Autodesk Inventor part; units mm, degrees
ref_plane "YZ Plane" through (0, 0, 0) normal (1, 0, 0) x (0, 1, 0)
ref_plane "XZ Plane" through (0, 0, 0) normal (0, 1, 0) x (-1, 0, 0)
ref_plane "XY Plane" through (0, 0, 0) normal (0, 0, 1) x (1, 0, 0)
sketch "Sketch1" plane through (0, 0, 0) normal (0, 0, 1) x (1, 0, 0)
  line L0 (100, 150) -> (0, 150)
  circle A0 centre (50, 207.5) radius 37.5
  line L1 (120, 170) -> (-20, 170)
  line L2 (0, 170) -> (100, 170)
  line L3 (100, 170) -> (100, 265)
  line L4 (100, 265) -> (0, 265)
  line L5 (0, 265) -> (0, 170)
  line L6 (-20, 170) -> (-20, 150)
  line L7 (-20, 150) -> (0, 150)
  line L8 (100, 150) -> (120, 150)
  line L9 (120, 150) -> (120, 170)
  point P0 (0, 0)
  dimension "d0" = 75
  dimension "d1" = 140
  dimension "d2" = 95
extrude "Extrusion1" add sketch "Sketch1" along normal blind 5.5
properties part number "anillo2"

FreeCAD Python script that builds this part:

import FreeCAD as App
import Part
import Sketcher

V = App.Vector

doc = App.newDocument("Part")
params = doc.addObject("Spreadsheet::Sheet", "Params")
for row, (alias, value) in enumerate([
    ("sketch1_diameter", "75 mm"),
    ("sketch1_width", "140 mm"),
    ("sketch1_height", "95 mm"),
    ("sketch1_width2", "20 mm"),
    ("pad1_length", "5.5 mm"),
], start=1):
    params.set(f"A{row}", alias)
    params.set(f"B{row}", "=" + value)
    params.setAlias(f"B{row}", alias)

body = doc.addObject("PartDesign::Body", "Body")

# Sketch on XY plane
sketch1 = body.newObject("Sketcher::SketchObject", "Sketch")
sketch1.AttachmentSupport = (doc.getObject("XY_Plane"), [""])
sketch1.MapMode = "FlatFace"
sketch1.addGeometry(Part.LineSegment(V(120, 150, 0), V(120, 170, 0)), False)
sketch1.addGeometry(Part.LineSegment(V(120, 170, 0), V(100, 170, 0)), False)
sketch1.addGeometry(Part.LineSegment(V(100, 170, 0), V(100, 265, 0)), False)
sketch1.addGeometry(Part.LineSegment(V(100, 265, 0), V(0, 265, 0)), False)
sketch1.addGeometry(Part.LineSegment(V(0, 265, 0), V(0, 170, 0)), False)
sketch1.addGeometry(Part.LineSegment(V(0, 170, 0), V(-20, 170, 0)), False)
sketch1.addGeometry(Part.LineSegment(V(-20, 170, 0), V(-20, 150, 0)), False)
sketch1.addGeometry(Part.LineSegment(V(-20, 150, 0), V(120, 150, 0)), False)
sketch1.addGeometry(Part.Circle(V(50, 208, 0), V(0, 0, 1), 38), False)
sketch1.addConstraint(Sketcher.Constraint("Coincident", 0, 2, 1, 1))
sketch1.addConstraint(Sketcher.Constraint("Coincident", 1, 2, 2, 1))
sketch1.addConstraint(Sketcher.Constraint("Coincident", 2, 2, 3, 1))
sketch1.addConstraint(Sketcher.Constraint("Coincident", 3, 2, 4, 1))
sketch1.addConstraint(Sketcher.Constraint("Coincident", 4, 2, 5, 1))
sketch1.addConstraint(Sketcher.Constraint("Coincident", 5, 2, 6, 1))
sketch1.addConstraint(Sketcher.Constraint("Coincident", 6, 2, 7, 1))
sketch1.addConstraint(Sketcher.Constraint("Coincident", 7, 2, 0, 1))
sketch1.addConstraint(Sketcher.Constraint("Vertical", 0))
sketch1.addConstraint(Sketcher.Constraint("Horizontal", 1))
sketch1.addConstraint(Sketcher.Constraint("Vertical", 2))
sketch1.addConstraint(Sketcher.Constraint("Horizontal", 3))
sketch1.addConstraint(Sketcher.Constraint("Vertical", 4))
sketch1.addConstraint(Sketcher.Constraint("Horizontal", 5))
sketch1.addConstraint(Sketcher.Constraint("Vertical", 6))
sketch1.addConstraint(Sketcher.Constraint("Horizontal", 7))
sketch1.addConstraint(Sketcher.Constraint("PointOnObject", 3, 2, -2))
sketch1.addConstraint(Sketcher.Constraint("Horizontal", 1, 2, 4, 2))
sketch1.addConstraint(Sketcher.Constraint("Equal", 1, 5))
sketch1.addConstraint(Sketcher.Constraint("Equal", 5, 0))
sketch1.addConstraint(Sketcher.Constraint("Diameter", 8, 75.0))
sketch1.addConstraint(Sketcher.Constraint("DistanceX", 7, 1, 7, 2, 140.0))
sketch1.addConstraint(Sketcher.Constraint("DistanceY", 2, 1, 2, 2, 95.0))
sketch1.addConstraint(Sketcher.Constraint("DistanceX", 1, 2, 1, 1, 20.0))
sketch1.addConstraint(Sketcher.Constraint("DistanceX", -1, 1, 8, 3, 50.0))
sketch1.addConstraint(Sketcher.Constraint("DistanceY", -1, 1, 0, 2, 170.0))
sketch1.addConstraint(Sketcher.Constraint("DistanceY", -1, 1, 8, 3, 207.5))
sketch1.setExpression("Constraints[20]", "Params.sketch1_diameter")
sketch1.setExpression("Constraints[21]", "Params.sketch1_width")
sketch1.setExpression("Constraints[22]", "Params.sketch1_height")
sketch1.setExpression("Constraints[23]", "Params.sketch1_width2")
pad1 = body.newObject("PartDesign::Pad", "Pad")
pad1.Profile = sketch1
pad1.setExpression("Length", "Params.pad1_length")

doc.recompute()
